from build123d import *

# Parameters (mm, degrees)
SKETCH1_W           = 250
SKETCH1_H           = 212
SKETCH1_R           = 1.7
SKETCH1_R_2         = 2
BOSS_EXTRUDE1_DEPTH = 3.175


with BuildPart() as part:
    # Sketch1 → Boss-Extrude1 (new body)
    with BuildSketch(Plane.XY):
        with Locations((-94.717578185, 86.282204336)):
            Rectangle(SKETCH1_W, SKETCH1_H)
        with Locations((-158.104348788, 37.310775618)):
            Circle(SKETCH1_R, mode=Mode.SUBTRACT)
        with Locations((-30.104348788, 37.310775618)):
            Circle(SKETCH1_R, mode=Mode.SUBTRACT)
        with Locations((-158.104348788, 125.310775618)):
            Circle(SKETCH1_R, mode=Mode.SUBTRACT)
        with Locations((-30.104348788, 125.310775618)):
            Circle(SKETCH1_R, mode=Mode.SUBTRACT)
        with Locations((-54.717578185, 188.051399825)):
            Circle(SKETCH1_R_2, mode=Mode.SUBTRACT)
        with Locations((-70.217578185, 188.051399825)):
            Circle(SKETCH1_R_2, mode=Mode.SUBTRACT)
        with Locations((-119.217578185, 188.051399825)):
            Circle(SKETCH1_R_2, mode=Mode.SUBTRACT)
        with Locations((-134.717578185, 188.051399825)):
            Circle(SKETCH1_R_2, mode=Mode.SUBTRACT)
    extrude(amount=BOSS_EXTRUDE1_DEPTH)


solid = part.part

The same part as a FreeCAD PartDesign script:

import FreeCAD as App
import Part
import Sketcher

V = App.Vector

doc = App.newDocument("Part")
params = doc.addObject("Spreadsheet::Sheet", "Params")
for row, (alias, value) in enumerate([
    ("sketch1_diameter", "4 mm"),
    ("sketch1_diameter2", "3.4 mm"),
    ("sketch1_width", "250 mm"),
    ("sketch1_height", "212 mm"),
    ("pad1_length", "3.175 mm"),
], start=1):
    params.set(f"A{row}", alias)
    params.set(f"B{row}", "=" + value)
    params.setAlias(f"B{row}", alias)

body = doc.addObject("PartDesign::Body", "Body")

# Sketch on XY plane
sketch1 = body.newObject("Sketcher::SketchObject", "Sketch")
sketch1.AttachmentSupport = (doc.getObject("XY_Plane"), [""])
sketch1.MapMode = "FlatFace"
sketch1.addGeometry([
    Part.LineSegment(V(-219.7, 192.3, 0), V(-219.7, -19.7, 0)),  # 0
    Part.LineSegment(V(-219.7, -19.7, 0), V(30.3, -19.7, 0)),  # 1
    Part.LineSegment(V(30.3, -19.7, 0), V(30.3, 192.3, 0)),  # 2
    Part.LineSegment(V(30.3, 192.3, 0), V(-219.7, 192.3, 0)),  # 3
    Part.Circle(V(-158.1, 37.3, 0), V(0, 0, 1), 1.7),  # 4
    Part.Circle(V(-30.1, 37.3, 0), V(0, 0, 1), 1.7),  # 5
    Part.Circle(V(-158.1, 125.3, 0), V(0, 0, 1), 1.7),  # 6
    Part.Circle(V(-134.7, 188.1, 0), V(0, 0, 1), 2),  # 7
    Part.Circle(V(-119.2, 188.1, 0), V(0, 0, 1), 2),  # 8
    Part.Circle(V(-30.1, 125.3, 0), V(0, 0, 1), 1.7),  # 9
    Part.Circle(V(-70.2, 188.1, 0), V(0, 0, 1), 2),  # 10
    Part.Circle(V(-54.7, 188.1, 0), V(0, 0, 1), 2),  # 11
], False)
sketch1.addConstraint([
    Sketcher.Constraint("Coincident", 0, 2, 1, 1),
    Sketcher.Constraint("Coincident", 1, 2, 2, 1),
    Sketcher.Constraint("Coincident", 2, 2, 3, 1),
    Sketcher.Constraint("Coincident", 3, 2, 0, 1),
    Sketcher.Constraint("Vertical", 0),
    Sketcher.Constraint("Horizontal", 1),
    Sketcher.Constraint("Vertical", 2),
    Sketcher.Constraint("Horizontal", 3),
    Sketcher.Constraint("Equal", 4, 5),
    Sketcher.Constraint("Equal", 5, 6),
    Sketcher.Constraint("Equal", 7, 8),
    Sketcher.Constraint("Equal", 6, 9),
    Sketcher.Constraint("Equal", 8, 10),
    Sketcher.Constraint("Equal", 10, 11),
    Sketcher.Constraint("Horizontal", 4, 3, 5, 3),
    Sketcher.Constraint("Horizontal", 7, 3, 8, 3),
    Sketcher.Constraint("Horizontal", 6, 3, 9, 3),
    Sketcher.Constraint("Horizontal", 8, 3, 10, 3),
    Sketcher.Constraint("Horizontal", 10, 3, 11, 3),
    Sketcher.Constraint("Vertical", 4, 3, 6, 3),
    Sketcher.Constraint("Vertical", 5, 3, 9, 3),
    Sketcher.Constraint("Diameter", 7, 4.0),
    Sketcher.Constraint("Diameter", 4, 3.4),
    Sketcher.Constraint("DistanceX", 1, 1, 1, 2, 250.0),
    Sketcher.Constraint("DistanceY", 0, 2, 0, 1, 212.0),
    Sketcher.Constraint("DistanceX", 4, 3, 5, 3, 128.0),
    Sketcher.Constraint("DistanceY", 4, 3, 6, 3, 88.0),
    Sketcher.Constraint("DistanceX", 8, 3, 10, 3, 49.0),
    Sketcher.Constraint("DistanceX", 7, 3, 11, 3, 80.0),
    Sketcher.Constraint("DistanceX", 0, 2, 7, 3, 85.0),
    Sketcher.Constraint("DistanceX", 7, 3, 8, 3, 15.5),
    Sketcher.Constraint("DistanceY", -1, 1, 7, 3, 188.0514),
    Sketcher.Constraint("DistanceX", 4, 3, -1, 1, 158.104349),
    Sketcher.Constraint("DistanceX", 7, 3, -1, 1, 134.717578),
    Sketcher.Constraint("DistanceY", 0, 2, 4, 3, 57.028571),
    Sketcher.Constraint("DistanceY", -1, 1, 4, 3, 37.310776),
])
sketch1.setExpression("Constraints[21]", "Params.sketch1_diameter")
sketch1.setExpression("Constraints[22]", "Params.sketch1_diameter2")
sketch1.setExpression("Constraints[23]", "Params.sketch1_width")
sketch1.setExpression("Constraints[24]", "Params.sketch1_height")
pad1 = body.newObject("PartDesign::Pad", "Pad")
pad1.Profile = sketch1
pad1.setExpression("Length", "Params.pad1_length")

doc.recompute()
